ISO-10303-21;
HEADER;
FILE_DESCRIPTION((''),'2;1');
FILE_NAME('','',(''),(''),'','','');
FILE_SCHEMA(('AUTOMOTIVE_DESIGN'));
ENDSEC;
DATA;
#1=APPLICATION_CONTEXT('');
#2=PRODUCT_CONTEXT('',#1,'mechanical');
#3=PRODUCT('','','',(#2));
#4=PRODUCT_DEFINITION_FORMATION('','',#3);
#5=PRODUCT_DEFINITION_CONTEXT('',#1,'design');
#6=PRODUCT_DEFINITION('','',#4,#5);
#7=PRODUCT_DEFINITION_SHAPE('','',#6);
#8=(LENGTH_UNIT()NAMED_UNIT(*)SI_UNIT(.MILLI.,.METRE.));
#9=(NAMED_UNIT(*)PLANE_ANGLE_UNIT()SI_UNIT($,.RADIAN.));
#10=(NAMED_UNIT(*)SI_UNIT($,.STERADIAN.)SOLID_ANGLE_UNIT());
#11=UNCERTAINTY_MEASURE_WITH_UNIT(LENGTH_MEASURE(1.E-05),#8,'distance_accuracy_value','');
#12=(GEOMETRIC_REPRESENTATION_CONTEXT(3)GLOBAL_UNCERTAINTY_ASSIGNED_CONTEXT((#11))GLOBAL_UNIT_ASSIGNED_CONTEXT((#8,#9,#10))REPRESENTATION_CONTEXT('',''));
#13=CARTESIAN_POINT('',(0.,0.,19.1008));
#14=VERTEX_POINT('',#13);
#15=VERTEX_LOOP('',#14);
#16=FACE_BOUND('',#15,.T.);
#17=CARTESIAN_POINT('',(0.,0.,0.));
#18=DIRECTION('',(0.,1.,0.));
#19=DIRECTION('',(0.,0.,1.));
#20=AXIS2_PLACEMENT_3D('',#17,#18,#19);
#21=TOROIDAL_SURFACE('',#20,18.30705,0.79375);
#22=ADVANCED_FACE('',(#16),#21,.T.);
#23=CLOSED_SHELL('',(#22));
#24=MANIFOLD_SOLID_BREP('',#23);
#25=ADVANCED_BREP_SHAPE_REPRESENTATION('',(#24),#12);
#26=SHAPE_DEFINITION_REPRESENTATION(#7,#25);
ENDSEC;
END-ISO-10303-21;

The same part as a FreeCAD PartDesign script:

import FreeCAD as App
import Part
import Sketcher

V = App.Vector
Q = App.Units.Quantity

doc = App.newDocument("Part")
body = doc.addObject("PartDesign::Body", "Body")

# Sketch on XY plane
sketch1 = doc.addObject("Sketcher::SketchObject", "Sketch")
body.addObject(sketch1)
sketch1.AttachmentSupport = (doc.XY_Plane, [""])
sketch1.MapMode = "FlatFace"
sketch1.addGeometry(Part.Circle(V(-18.30705, 0, 0), V(0, 0, 1), 0.79375), False)
sketch1.addConstraint([
    Sketcher.Constraint("PointOnObject", 0, 3, -1),
    Sketcher.Constraint("Diameter", 0, Q("0.0625 in")),
    Sketcher.Constraint("DistanceX", 0, 3, -1, 1, 18.30705),
])
revolution = doc.addObject("PartDesign::Revolution", "Revolution")
body.addObject(revolution)
revolution.Profile = sketch1
revolution.ReferenceAxis = (sketch1, ["V_Axis"])
revolution.Angle = 360

doc.recompute()
